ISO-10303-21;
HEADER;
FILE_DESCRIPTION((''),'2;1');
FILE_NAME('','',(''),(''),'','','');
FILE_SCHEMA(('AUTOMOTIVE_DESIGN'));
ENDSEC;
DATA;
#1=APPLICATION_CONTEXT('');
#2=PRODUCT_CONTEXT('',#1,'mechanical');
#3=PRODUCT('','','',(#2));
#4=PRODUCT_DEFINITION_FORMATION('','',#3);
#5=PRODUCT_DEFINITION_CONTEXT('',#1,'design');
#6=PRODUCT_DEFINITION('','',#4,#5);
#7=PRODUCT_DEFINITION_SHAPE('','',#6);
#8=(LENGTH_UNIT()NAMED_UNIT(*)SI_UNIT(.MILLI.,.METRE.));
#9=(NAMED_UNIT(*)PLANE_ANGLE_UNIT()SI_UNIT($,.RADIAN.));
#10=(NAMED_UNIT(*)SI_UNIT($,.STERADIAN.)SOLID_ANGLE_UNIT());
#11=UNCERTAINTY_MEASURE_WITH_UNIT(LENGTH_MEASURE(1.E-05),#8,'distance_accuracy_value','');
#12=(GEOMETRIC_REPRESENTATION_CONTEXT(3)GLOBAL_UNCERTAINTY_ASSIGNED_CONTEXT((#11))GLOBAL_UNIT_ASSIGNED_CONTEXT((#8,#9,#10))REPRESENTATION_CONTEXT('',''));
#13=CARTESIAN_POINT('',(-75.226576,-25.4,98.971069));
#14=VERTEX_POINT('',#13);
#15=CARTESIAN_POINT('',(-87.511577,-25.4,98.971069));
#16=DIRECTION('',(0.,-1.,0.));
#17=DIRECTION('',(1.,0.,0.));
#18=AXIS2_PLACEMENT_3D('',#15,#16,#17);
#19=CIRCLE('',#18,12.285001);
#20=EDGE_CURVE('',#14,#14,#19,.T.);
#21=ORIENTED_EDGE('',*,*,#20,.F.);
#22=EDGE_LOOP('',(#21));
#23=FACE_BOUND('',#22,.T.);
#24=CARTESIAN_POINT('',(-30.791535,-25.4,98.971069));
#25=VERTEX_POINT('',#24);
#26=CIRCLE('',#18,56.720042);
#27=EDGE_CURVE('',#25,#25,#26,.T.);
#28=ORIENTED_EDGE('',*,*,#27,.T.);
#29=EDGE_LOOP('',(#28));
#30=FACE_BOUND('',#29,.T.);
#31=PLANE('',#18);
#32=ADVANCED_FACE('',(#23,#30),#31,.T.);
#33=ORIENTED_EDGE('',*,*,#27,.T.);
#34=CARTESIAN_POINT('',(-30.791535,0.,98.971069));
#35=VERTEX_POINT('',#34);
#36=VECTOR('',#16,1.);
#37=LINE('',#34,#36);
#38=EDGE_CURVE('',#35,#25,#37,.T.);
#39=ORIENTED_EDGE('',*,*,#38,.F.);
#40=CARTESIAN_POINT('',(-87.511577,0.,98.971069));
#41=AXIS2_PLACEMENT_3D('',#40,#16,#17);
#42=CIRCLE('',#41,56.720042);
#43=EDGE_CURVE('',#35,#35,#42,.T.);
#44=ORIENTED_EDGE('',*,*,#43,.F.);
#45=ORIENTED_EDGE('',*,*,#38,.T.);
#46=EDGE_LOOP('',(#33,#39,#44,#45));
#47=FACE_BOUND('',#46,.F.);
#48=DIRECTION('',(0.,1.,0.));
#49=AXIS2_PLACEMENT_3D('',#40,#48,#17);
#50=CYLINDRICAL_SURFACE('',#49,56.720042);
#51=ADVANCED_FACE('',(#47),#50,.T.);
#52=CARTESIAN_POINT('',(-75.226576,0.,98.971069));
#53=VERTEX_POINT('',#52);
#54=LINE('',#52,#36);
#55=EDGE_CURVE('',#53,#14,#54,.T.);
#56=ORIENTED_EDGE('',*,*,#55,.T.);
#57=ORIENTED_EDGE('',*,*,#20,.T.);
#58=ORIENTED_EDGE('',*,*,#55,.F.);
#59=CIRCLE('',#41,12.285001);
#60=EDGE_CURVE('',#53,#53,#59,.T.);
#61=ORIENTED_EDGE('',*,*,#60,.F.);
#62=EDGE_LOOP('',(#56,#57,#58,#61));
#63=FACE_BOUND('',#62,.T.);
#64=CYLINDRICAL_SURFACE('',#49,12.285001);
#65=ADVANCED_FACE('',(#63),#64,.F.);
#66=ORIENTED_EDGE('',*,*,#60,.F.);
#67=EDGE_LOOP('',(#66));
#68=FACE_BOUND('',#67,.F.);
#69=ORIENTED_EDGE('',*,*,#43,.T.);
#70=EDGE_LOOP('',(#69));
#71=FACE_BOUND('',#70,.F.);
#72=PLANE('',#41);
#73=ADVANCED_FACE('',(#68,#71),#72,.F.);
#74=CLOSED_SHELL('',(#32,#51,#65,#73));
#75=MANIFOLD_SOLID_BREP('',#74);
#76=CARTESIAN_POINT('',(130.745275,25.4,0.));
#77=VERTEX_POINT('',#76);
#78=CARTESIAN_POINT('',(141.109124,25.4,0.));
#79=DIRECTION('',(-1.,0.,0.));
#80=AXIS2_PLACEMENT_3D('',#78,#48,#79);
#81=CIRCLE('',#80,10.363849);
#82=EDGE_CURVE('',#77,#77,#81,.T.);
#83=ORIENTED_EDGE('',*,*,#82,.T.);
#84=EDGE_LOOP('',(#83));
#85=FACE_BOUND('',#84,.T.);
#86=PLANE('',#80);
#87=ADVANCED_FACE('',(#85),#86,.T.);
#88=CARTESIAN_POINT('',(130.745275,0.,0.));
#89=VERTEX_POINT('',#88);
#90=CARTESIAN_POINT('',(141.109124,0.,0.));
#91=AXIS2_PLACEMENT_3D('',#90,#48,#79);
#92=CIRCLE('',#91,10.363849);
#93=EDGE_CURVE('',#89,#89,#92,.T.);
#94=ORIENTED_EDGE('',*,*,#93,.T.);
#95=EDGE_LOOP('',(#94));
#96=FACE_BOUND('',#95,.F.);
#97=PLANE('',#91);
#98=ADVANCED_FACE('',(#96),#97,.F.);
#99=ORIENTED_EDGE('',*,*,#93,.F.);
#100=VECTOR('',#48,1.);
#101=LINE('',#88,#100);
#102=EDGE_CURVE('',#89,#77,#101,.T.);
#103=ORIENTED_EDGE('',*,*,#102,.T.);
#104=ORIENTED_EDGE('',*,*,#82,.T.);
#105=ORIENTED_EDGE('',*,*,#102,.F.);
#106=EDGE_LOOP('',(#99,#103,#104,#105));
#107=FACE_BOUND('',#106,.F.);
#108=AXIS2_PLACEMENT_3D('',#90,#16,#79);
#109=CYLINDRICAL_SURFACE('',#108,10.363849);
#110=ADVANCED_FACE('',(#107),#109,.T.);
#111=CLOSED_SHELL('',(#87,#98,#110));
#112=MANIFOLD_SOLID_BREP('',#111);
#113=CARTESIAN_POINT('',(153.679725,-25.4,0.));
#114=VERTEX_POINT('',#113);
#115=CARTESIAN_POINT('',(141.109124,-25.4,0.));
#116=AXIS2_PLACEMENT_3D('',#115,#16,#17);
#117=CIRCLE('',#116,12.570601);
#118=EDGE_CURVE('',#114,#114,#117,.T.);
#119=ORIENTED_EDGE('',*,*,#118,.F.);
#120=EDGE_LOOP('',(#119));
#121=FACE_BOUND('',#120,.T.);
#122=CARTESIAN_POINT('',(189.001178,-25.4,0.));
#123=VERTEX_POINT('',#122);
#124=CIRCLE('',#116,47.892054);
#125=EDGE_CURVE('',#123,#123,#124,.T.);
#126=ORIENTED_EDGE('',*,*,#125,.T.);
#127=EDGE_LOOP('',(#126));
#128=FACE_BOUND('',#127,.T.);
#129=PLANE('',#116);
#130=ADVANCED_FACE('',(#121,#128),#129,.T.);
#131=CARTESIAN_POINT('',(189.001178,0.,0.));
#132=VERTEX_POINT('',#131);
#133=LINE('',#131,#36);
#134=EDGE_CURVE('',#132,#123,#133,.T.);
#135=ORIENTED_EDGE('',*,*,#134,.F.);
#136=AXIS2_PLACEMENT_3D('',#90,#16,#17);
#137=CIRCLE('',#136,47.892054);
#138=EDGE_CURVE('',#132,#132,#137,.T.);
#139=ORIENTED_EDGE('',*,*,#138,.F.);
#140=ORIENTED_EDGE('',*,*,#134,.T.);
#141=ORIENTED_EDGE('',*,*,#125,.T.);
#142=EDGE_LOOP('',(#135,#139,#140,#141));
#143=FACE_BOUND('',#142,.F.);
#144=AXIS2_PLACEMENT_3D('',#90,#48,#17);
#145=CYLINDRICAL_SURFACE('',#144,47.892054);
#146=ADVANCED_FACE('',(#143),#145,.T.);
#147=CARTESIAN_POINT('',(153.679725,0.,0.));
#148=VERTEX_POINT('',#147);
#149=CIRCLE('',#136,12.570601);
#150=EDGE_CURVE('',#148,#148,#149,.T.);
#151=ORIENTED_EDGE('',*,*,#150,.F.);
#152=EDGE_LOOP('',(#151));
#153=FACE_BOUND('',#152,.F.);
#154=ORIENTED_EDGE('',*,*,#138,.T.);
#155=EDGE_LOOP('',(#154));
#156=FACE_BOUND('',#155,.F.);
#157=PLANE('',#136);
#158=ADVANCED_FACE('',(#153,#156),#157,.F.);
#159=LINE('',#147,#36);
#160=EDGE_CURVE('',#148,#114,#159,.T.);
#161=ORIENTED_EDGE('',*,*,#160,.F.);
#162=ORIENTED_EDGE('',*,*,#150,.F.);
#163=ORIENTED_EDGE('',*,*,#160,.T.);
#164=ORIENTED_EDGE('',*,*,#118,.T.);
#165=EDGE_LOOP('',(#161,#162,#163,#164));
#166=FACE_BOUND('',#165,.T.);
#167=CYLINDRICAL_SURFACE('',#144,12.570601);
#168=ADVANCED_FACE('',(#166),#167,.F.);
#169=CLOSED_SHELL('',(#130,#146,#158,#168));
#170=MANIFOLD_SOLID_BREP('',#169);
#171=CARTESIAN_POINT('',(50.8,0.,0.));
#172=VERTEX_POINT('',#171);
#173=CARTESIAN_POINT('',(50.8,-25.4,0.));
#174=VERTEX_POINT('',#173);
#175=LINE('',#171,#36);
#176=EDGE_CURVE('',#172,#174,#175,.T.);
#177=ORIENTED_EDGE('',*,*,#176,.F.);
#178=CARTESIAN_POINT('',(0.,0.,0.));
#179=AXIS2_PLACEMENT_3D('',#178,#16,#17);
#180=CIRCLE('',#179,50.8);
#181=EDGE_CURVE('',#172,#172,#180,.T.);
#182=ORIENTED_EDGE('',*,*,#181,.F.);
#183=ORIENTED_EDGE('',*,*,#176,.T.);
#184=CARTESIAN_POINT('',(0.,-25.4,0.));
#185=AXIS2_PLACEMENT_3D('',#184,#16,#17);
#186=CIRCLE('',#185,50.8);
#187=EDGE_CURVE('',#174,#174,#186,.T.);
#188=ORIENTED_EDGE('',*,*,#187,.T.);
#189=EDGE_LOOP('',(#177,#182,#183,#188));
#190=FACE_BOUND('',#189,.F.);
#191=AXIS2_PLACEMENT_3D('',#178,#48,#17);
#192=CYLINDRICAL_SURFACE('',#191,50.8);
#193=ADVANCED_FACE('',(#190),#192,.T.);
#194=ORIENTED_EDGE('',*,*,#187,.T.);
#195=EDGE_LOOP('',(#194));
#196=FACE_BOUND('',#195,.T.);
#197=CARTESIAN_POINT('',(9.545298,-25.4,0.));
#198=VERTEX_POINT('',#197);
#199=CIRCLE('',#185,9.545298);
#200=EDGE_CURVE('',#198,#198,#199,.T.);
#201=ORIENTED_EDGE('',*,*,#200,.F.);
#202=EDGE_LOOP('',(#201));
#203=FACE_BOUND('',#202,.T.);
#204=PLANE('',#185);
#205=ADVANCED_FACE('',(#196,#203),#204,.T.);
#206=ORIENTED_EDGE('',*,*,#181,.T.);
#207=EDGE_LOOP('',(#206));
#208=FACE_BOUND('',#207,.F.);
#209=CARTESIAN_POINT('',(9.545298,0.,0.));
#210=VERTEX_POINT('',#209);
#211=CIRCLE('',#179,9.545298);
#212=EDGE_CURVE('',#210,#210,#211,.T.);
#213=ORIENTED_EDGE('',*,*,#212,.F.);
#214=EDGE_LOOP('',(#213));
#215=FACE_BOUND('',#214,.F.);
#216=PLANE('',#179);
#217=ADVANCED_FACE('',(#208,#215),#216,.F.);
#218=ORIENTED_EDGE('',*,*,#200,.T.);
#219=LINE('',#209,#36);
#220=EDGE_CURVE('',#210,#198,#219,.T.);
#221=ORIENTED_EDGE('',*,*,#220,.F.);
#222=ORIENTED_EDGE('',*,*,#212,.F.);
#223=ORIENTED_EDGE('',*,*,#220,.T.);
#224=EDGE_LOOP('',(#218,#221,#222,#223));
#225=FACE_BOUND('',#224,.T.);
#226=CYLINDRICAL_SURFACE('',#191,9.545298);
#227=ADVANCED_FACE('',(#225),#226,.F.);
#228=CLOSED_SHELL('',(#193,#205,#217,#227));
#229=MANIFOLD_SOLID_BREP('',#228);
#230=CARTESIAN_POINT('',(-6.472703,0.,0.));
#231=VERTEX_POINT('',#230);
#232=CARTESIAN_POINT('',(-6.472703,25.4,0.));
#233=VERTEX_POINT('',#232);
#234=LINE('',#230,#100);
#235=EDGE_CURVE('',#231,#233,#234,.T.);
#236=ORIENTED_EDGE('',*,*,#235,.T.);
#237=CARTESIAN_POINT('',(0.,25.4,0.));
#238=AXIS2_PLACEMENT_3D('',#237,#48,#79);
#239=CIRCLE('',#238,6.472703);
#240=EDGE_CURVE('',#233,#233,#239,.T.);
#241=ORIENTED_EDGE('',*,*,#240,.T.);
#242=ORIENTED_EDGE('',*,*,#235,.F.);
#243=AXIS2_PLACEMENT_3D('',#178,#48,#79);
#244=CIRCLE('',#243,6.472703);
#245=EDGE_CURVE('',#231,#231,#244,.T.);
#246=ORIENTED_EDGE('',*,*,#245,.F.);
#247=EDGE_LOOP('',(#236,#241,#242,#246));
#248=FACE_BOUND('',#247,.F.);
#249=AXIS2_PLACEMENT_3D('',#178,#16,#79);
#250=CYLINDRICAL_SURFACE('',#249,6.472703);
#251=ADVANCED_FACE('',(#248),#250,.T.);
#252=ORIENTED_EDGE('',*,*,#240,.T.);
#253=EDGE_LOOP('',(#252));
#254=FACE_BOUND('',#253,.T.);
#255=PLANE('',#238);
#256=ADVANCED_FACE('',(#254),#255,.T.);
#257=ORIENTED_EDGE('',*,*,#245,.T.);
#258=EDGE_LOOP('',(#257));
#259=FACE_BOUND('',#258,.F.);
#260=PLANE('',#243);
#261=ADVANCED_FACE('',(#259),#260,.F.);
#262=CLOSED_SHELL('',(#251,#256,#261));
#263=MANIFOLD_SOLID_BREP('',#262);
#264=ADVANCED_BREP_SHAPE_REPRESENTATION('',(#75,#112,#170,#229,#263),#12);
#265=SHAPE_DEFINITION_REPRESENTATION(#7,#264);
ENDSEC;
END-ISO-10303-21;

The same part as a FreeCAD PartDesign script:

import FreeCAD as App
import Part
import Sketcher

V = App.Vector
Q = App.Units.Quantity

doc = App.newDocument("Part")
body = doc.addObject("PartDesign::Body", "Body")

sketch1 = body.newObject("Sketcher::SketchObject", "Sketch")
sketch1.AttachmentSupport = (doc.getObject("XZ_Plane"), [""])
sketch1.MapMode = "FlatFace"
sketch1.addGeometry([
    Part.Circle(V(0, 0, 0), V(0, 0, 1), 50.8),
    Part.Circle(V(0, 0, 0), V(0, 0, 1), 9.545298),
], False)
sketch1.addConstraint([
    Sketcher.Constraint("Coincident", 0, 3, -1, 1),
    Sketcher.Constraint("Coincident", 1, 3, -1, 1),
    Sketcher.Constraint("Diameter", 0, Q("4 in")),
    Sketcher.Constraint("Diameter", 1, 19.090596),
])
pad1 = body.newObject("PartDesign::Pad", "Pad")
pad1.Profile = sketch1
pad1.Length = Q("1 in")
body2 = doc.addObject("PartDesign::Body", "Body001")

sketch2 = body2.newObject("Sketcher::SketchObject", "Sketch001")
sketch2.AttachmentSupport = (doc.getObject("XZ_Plane001"), [""])
sketch2.MapMode = "FlatFace"
sketch2.addGeometry([
    Part.Circle(V(-87.511577, 98.971069, 0), V(0, 0, 1), 56.720042),
    Part.Circle(V(-87.511577, 98.971069, 0), V(0, 0, 1), 12.285001),
], False)
sketch2.addConstraint([
    Sketcher.Constraint("Coincident", 1, 3, 0, 3),
    Sketcher.Constraint("Diameter", 1, 24.570002),
    Sketcher.Constraint("Diameter", 0, 113.440084),
    Sketcher.Constraint("DistanceY", -1, 1, 0, 3, 98.971069),
    Sketcher.Constraint("DistanceX", 0, 3, -1, 1, 87.511577),
])
pad2 = body2.newObject("PartDesign::Pad", "Pad001")
pad2.Profile = sketch2
pad2.Length = Q("1 in")
body3 = doc.addObject("PartDesign::Body", "Body002")

sketch3 = body3.newObject("Sketcher::SketchObject", "Sketch002")
sketch3.AttachmentSupport = (doc.getObject("XZ_Plane002"), [""])
sketch3.MapMode = "FlatFace"
sketch3.addGeometry([
    Part.Circle(V(141.109124, 0, 0), V(0, 0, 1), 47.892054),
    Part.Circle(V(141.109124, 0, 0), V(0, 0, 1), 12.570601),
], False)
sketch3.addConstraint([
    Sketcher.Constraint("Coincident", 1, 3, 0, 3),
    Sketcher.Constraint("PointOnObject", 0, 3, -1),
    Sketcher.Constraint("Diameter", 1, 25.141202),
    Sketcher.Constraint("Diameter", 0, 95.784108),
    Sketcher.Constraint("DistanceX", -1, 1, 0, 3, 141.109124),
])
pad3 = body3.newObject("PartDesign::Pad", "Pad002")
pad3.Profile = sketch3
pad3.Length = Q("1 in")
body4 = doc.addObject("PartDesign::Body", "Body003")

sketch4 = body4.newObject("Sketcher::SketchObject", "Sketch003")
sketch4.AttachmentSupport = (doc.getObject("XZ_Plane003"), [""])
sketch4.MapMode = "FlatFace"
sketch4.addGeometry(Part.Circle(V(141.109124, 0, 0), V(0, 0, 1), 10.363849), False)
sketch4.addConstraint([
    Sketcher.Constraint("PointOnObject", 0, 3, -1),
    Sketcher.Constraint("Diameter", 0, 20.727698),
    Sketcher.Constraint("DistanceX", -1, 1, 0, 3, 141.109124),
])
pad4 = body4.newObject("PartDesign::Pad", "Pad003")
pad4.Profile = sketch4
pad4.Length = Q("1 in")
pad4.Reversed = True
body5 = doc.addObject("PartDesign::Body", "Body004")

sketch5 = body5.newObject("Sketcher::SketchObject", "Sketch004")
sketch5.AttachmentSupport = (doc.getObject("XZ_Plane004"), [""])
sketch5.MapMode = "FlatFace"
sketch5.addGeometry(Part.Circle(V(0, 0, 0), V(0, 0, 1), 6.472703), False)
sketch5.addConstraint([
    Sketcher.Constraint("Coincident", 0, 3, -1, 1),
    Sketcher.Constraint("Diameter", 0, 12.945406),
])
pad5 = body5.newObject("PartDesign::Pad", "Pad004")
pad5.Profile = sketch5
pad5.Length = Q("1 in")
pad5.Reversed = True

doc.recompute()
